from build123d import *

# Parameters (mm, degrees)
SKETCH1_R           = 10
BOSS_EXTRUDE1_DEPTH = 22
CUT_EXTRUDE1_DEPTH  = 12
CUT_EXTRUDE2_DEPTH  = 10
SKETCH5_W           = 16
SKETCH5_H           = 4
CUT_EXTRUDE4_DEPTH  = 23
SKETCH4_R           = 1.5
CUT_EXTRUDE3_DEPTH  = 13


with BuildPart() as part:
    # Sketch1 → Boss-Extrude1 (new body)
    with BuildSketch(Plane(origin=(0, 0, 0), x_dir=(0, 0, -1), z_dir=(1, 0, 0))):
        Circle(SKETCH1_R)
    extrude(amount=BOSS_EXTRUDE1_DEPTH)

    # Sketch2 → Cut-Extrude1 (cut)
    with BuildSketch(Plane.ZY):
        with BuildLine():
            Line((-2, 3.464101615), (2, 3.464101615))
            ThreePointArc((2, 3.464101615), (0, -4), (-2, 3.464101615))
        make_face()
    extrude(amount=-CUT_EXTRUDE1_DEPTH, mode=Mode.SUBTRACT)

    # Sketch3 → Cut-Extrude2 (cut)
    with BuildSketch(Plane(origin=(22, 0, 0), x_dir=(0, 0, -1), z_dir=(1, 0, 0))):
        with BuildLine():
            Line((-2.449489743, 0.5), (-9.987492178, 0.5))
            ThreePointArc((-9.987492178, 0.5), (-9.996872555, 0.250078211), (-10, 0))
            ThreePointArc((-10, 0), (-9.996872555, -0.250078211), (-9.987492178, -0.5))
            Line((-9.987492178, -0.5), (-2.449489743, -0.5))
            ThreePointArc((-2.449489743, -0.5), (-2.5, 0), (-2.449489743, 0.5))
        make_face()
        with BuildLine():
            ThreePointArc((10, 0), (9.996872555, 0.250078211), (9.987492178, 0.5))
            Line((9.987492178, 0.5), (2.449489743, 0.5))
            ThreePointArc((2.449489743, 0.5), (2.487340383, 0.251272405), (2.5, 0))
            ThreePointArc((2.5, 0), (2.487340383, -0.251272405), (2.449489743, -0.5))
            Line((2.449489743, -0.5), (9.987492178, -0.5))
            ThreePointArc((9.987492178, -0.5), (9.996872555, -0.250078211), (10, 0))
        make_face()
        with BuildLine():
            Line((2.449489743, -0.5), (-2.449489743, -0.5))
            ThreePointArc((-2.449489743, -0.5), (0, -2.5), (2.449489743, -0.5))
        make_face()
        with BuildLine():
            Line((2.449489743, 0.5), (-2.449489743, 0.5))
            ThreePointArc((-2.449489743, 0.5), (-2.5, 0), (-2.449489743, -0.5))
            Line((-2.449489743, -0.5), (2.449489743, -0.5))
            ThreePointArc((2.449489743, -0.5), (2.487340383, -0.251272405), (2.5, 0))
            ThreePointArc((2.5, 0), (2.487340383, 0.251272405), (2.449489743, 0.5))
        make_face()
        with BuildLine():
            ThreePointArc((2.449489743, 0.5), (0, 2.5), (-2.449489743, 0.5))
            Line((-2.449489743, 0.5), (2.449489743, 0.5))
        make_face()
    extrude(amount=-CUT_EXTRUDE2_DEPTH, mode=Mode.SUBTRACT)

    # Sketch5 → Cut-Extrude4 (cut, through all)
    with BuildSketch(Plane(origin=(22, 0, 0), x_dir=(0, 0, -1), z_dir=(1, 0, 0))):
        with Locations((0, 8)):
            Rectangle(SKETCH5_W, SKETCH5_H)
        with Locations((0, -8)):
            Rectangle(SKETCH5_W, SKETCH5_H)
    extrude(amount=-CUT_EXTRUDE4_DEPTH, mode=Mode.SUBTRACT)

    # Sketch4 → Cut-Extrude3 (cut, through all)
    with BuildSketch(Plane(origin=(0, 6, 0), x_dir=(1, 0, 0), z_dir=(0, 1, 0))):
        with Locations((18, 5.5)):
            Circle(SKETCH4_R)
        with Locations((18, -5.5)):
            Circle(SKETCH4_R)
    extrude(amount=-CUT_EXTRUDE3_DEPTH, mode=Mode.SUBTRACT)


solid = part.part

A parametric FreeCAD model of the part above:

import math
import FreeCAD as App
import Part
import Sketcher


def add_polygon(sketch, points):
    """Adds a closed chain of lines whose ends are joined by coincident constraints."""
    first, n = sketch.GeometryCount, len(points)
    for a, b in zip(points, points[1:] + points[:1]):
        sketch.addGeometry(Part.LineSegment(App.Vector(*a, 0), App.Vector(*b, 0)), False)
    for i in range(n):
        sketch.addConstraint(Sketcher.Constraint("Coincident", first + i, 2, first + (i + 1) % n, 1))

doc = App.newDocument("Part")
body = doc.addObject("PartDesign::Body", "Body")

# Sketch on YZ plane
sketch1 = body.newObject("Sketcher::SketchObject", "Sketch")
sketch1.AttachmentSupport = (doc.getObject("YZ_Plane"), [""])
sketch1.MapMode = "FlatFace"
sketch1.addGeometry(Part.Circle(App.Vector(0, 0, 0), App.Vector(0, 0, 1), 10), False)
sketch1.addConstraint([
    Sketcher.Constraint("Coincident", 0, 3, -1, 1),
    Sketcher.Constraint("Diameter", 0, 20.0),
])
pad1 = body.newObject("PartDesign::Pad", "Pad")
pad1.Profile = sketch1
pad1.Length = 22

# Sketch on YZ plane
sketch2 = body.newObject("Sketcher::SketchObject", "Sketch001")
sketch2.AttachmentSupport = (doc.getObject("YZ_Plane"), [""])
sketch2.MapMode = "FlatFace"
sketch2.addGeometry([
    Part.LineSegment(App.Vector(3.5, 2, 0), App.Vector(3.5, -2, 0)),
    Part.ArcOfCircle(Part.Circle(App.Vector(0, 0, 0), App.Vector(0, 0, 1), 4), math.radians(30), math.radians(330)),
], False)
sketch2.addConstraint([
    Sketcher.Constraint("Coincident", 0, 1, 1, 1),
    Sketcher.Constraint("Coincident", 1, 2, 0, 2),
    Sketcher.Constraint("Vertical", 0),
    Sketcher.Constraint("Coincident", 1, 3, -1, 1),
    Sketcher.Constraint("Radius", 1, 4.0),
    Sketcher.Constraint("DistanceY", 0, 2, 0, 1, 4.0),
])
pocket1 = body.newObject("PartDesign::Pocket", "Pocket")
pocket1.Profile = sketch2
pocket1.Length = 12
pocket1.Reversed = True

# Sketch on YZ plane
sketch3 = body.newObject("Sketcher::SketchObject", "Sketch002")
sketch3.AttachmentSupport = (doc.getObject("YZ_Plane"), [""])
sketch3.MapMode = "FlatFace"
sketch3.AttachmentOffset = App.Placement(App.Vector(0, 0, 22), App.Rotation())
sketch3.addGeometry([
    Part.ArcOfCircle(Part.Circle(App.Vector(0, 0, 0), App.Vector(0, 0, 1), 2.5), math.radians(-78), math.radians(78)),  # 0
    Part.LineSegment(App.Vector(0.5, 2.4, 0), App.Vector(0.5, 10, 0)),  # 1
    Part.ArcOfCircle(Part.Circle(App.Vector(0, 0, 0), App.Vector(0, 0, 1), 10), math.radians(87.13), math.radians(90)),  # 2
    Part.ArcOfCircle(Part.Circle(App.Vector(0, 0, 0), App.Vector(0, 0, 1), 10), math.radians(90), math.radians(92.87)),  # 3
    Part.LineSegment(App.Vector(-0.5, 10, 0), App.Vector(-0.5, 2.4, 0)),  # 4
    Part.ArcOfCircle(Part.Circle(App.Vector(0, 0, 0), App.Vector(0, 0, 1), 2.5), math.radians(102), math.radians(258)),  # 5
    Part.LineSegment(App.Vector(-0.5, -2.4, 0), App.Vector(-0.5, -10, 0)),  # 6
    Part.ArcOfCircle(Part.Circle(App.Vector(0, 0, 0), App.Vector(0, 0, 1), 10), math.radians(-92.87), math.radians(-90)),  # 7
    Part.ArcOfCircle(Part.Circle(App.Vector(0, 0, 0), App.Vector(0, 0, 1), 10), math.radians(-90), math.radians(-87.13)),  # 8
    Part.LineSegment(App.Vector(0.5, -10, 0), App.Vector(0.5, -2.4, 0)),  # 9
], False)
sketch3.addConstraint([
    Sketcher.Constraint("Coincident", 0, 2, 1, 1),
    Sketcher.Constraint("Coincident", 1, 2, 2, 1),
    Sketcher.Constraint("Tangent", 2, 2, 3, 1),
    Sketcher.Constraint("Coincident", 3, 2, 4, 1),
    Sketcher.Constraint("Coincident", 4, 2, 5, 1),
    Sketcher.Constraint("Coincident", 5, 2, 6, 1),
    Sketcher.Constraint("Coincident", 6, 2, 7, 1),
    Sketcher.Constraint("Tangent", 7, 2, 8, 1),
    Sketcher.Constraint("Coincident", 8, 2, 9, 1),
    Sketcher.Constraint("Coincident", 9, 2, 0, 1),
    Sketcher.Constraint("Vertical", 1),
    Sketcher.Constraint("Vertical", 4),
    Sketcher.Constraint("Vertical", 6),
    Sketcher.Constraint("Vertical", 9),
    Sketcher.Constraint("Coincident", 0, 3, -1, 1),
    Sketcher.Constraint("Coincident", 2, 3, -1, 1),
    Sketcher.Constraint("Coincident", 5, 3, -1, 1),
    Sketcher.Constraint("Coincident", 7, 3, -1, 1),
    Sketcher.Constraint("Equal", 2, 3),
    Sketcher.Constraint("Equal", 0, 5),
    Sketcher.Constraint("Equal", 3, 7),
    Sketcher.Constraint("Equal", 7, 8),
    Sketcher.Constraint("PointOnObject", 2, 2, -2),
    Sketcher.Constraint("PointOnObject", 7, 2, -2),
    Sketcher.Constraint("Horizontal", 1, 2, 3, 2),
    Sketcher.Constraint("Horizontal", 6, 2, 8, 2),
    Sketcher.Constraint("Vertical", 4, 2, 5, 2),
    Sketcher.Constraint("Radius", 2, 10.000002),
    Sketcher.Constraint("Radius", 0, 2.5),
    Sketcher.Constraint("DistanceX", 3, 2, 1, 2, 1.0),
])
pocket2 = body.newObject("PartDesign::Pocket", "Pocket001")
pocket2.Profile = sketch3
pocket2.Length = 10

# Sketch on YZ plane
sketch4 = body.newObject("Sketcher::SketchObject", "Sketch003")
sketch4.AttachmentSupport = (doc.getObject("YZ_Plane"), [""])
sketch4.MapMode = "FlatFace"
sketch4.AttachmentOffset = App.Placement(App.Vector(0, 0, 22), App.Rotation())
add_polygon(sketch4, [(10, 8), (6, 8), (6, -8), (10, -8)])  # lines 0-3
add_polygon(sketch4, [(-6, 8), (-10, 8), (-10, -8), (-6, -8)])  # lines 4-7
sketch4.addConstraint([
    Sketcher.Constraint("Horizontal", 0),
    Sketcher.Constraint("Vertical", 1),
    Sketcher.Constraint("Horizontal", 2),
    Sketcher.Constraint("Vertical", 3),
    Sketcher.Constraint("Horizontal", 4),
    Sketcher.Constraint("Vertical", 5),
    Sketcher.Constraint("Horizontal", 6),
    Sketcher.Constraint("Vertical", 7),
    Sketcher.Constraint("Symmetric", 2, 2, 4, 2, -1, 1),
    Sketcher.Constraint("Symmetric", 0, 2, 6, 2, -1, 1),
    Sketcher.Constraint("Horizontal", 3, 2, 4, 2),
    Sketcher.Constraint("DistanceX", 0, 2, 0, 1, 4.0),
    Sketcher.Constraint("DistanceY", 1, 2, 1, 1, 16.0),
    Sketcher.Constraint("DistanceX", -1, 1, 0, 2, 6.0),
])
pocket3 = body.newObject("PartDesign::Pocket", "Pocket002")
pocket3.Profile = sketch4
pocket3.Type = "ThroughAll"

# Sketch on XZ plane
sketch5 = body.newObject("Sketcher::SketchObject", "Sketch004")
sketch5.AttachmentSupport = (doc.getObject("XZ_Plane"), [""])
sketch5.MapMode = "FlatFace"
sketch5.AttachmentOffset = App.Placement(App.Vector(0, 0, -6), App.Rotation())
sketch5.addGeometry([
    Part.Circle(App.Vector(18, -5.5, 0), App.Vector(0, 0, 1), 1.5),
    Part.Circle(App.Vector(18, 5.5, 0), App.Vector(0, 0, 1), 1.5),
], False)
sketch5.addConstraint([
    Sketcher.Constraint("Equal", 0, 1),
    Sketcher.Constraint("Symmetric", 0, 3, 1, 3, -1),
    Sketcher.Constraint("Diameter", 0, 3.0),
    Sketcher.Constraint("DistanceX", -1, 1, 0, 3, 18.0),
    Sketcher.Constraint("DistanceY", 0, 3, 1, 3, 11.0),
])
pocket4 = body.newObject("PartDesign::Pocket", "Pocket003")
pocket4.Profile = sketch5
pocket4.Type = "ThroughAll"
pocket4.Reversed = True

doc.recompute()
